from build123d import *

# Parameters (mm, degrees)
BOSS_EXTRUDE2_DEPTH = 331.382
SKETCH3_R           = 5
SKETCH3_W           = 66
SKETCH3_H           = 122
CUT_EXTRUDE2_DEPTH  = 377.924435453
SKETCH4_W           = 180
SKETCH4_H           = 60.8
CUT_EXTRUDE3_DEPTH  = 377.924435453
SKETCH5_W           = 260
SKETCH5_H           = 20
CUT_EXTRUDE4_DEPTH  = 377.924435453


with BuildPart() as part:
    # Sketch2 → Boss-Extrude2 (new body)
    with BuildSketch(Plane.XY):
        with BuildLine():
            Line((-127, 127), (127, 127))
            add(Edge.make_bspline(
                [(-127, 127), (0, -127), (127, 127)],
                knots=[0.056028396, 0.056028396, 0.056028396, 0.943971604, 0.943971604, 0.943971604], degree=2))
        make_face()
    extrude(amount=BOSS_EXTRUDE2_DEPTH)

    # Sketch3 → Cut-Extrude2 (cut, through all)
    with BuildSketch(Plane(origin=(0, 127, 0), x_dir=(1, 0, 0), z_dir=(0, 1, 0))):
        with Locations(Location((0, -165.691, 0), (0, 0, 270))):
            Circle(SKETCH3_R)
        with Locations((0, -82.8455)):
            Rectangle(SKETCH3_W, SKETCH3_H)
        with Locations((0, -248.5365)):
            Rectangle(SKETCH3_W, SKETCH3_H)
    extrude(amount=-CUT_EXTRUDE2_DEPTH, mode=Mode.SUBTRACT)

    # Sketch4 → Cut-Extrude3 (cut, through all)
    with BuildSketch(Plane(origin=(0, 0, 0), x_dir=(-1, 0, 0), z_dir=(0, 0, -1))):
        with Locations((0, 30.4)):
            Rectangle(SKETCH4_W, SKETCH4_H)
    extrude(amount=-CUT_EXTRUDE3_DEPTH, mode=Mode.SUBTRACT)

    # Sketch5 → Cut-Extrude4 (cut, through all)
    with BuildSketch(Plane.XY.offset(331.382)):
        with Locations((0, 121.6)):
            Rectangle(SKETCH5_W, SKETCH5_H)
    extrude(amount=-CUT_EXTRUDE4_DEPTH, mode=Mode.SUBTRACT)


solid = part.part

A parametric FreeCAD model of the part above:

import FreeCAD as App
import Part
import Sketcher
from FreeCAD import Vector


def add_polygon(sketch, points):
    """Adds a closed chain of lines whose ends are joined by coincident constraints."""
    first, n = sketch.GeometryCount, len(points)
    for a, b in zip(points, points[1:] + points[:1]):
        sketch.addGeometry(Part.LineSegment(App.Vector(*a, 0), App.Vector(*b, 0)), False)
    for i in range(n):
        sketch.addConstraint(Sketcher.Constraint("Coincident", first + i, 2, first + (i + 1) % n, 1))

doc = App.newDocument("Part")
params = doc.addObject("Spreadsheet::Sheet", "Params")
for row, (alias, value) in enumerate([
    ("pad1_length", "331.382 mm"),
    ("sketch2_diameter", "10 mm"),
    ("sketch2_width", "66 mm"),
    ("sketch2_height", "122 mm"),
    ("sketch3_width", "180 mm"),
    ("sketch3_height", "60.8 mm"),
    ("sketch4_width", "260 mm"),
    ("sketch4_height", "20 mm"),
], start=1):
    params.set(f"A{row}", alias)
    params.set(f"B{row}", "=" + value)
    params.setAlias(f"B{row}", alias)

body = doc.addObject("PartDesign::Body", "Body")

sketch1 = body.newObject("Sketcher::SketchObject", "Sketch")
sketch1.AttachmentSupport = (doc.getObject("XY_Plane"), [""])
sketch1.MapMode = "FlatFace"
sketch1.addGeometry(Part.LineSegment(Vector(127, 127, 0), Vector(-127, 127, 0)), False)
sketch1.addGeometry(Part.BSplineCurve([Vector(-127, 127, 0), Vector(0, -127, 0), Vector(127, 127, 0)], [3, 3], [0.056028396, 0.943971604], False, 2, [1, 1, 1], False), False)
sketch1.addConstraint(Sketcher.Constraint("Block", 1))
sketch1.addConstraint(Sketcher.Constraint("Coincident", 0, 1, 1, 2))
sketch1.addConstraint(Sketcher.Constraint("Coincident", 1, 1, 0, 2))
pad1 = body.newObject("PartDesign::Pad", "Pad")
pad1.Profile = sketch1
pad1.setExpression("Length", "Params.pad1_length")

sketch2 = body.newObject("Sketcher::SketchObject", "Sketch001")
sketch2.AttachmentSupport = (doc.getObject("XZ_Plane"), [""])
sketch2.MapMode = "FlatFace"
sketch2.AttachmentOffset = App.Placement(Vector(0, 0, -127), App.Rotation())
sketch2.addGeometry(Part.Circle(Vector(0, 165.691, 0), Vector(0, 0, 1), 5), False)
add_polygon(sketch2, [(-33, 21.8455), (-33, 143.8455), (33, 143.8455), (33, 21.8455)])
add_polygon(sketch2, [(-33, 187.5365), (-33, 309.5365), (33, 309.5365), (33, 187.5365)])
sketch2.addConstraint(Sketcher.Constraint("Vertical", 1))
sketch2.addConstraint(Sketcher.Constraint("Horizontal", 2))
sketch2.addConstraint(Sketcher.Constraint("Vertical", 3))
sketch2.addConstraint(Sketcher.Constraint("Horizontal", 4))
sketch2.addConstraint(Sketcher.Constraint("Vertical", 5))
sketch2.addConstraint(Sketcher.Constraint("Horizontal", 6))
sketch2.addConstraint(Sketcher.Constraint("Vertical", 7))
sketch2.addConstraint(Sketcher.Constraint("Horizontal", 8))
sketch2.addConstraint(Sketcher.Constraint("PointOnObject", 0, 3, -2))
sketch2.addConstraint(Sketcher.Constraint("Vertical", 4, 2, 5, 2))
sketch2.addConstraint(Sketcher.Constraint("Vertical", 3, 2, 6, 2))
sketch2.addConstraint(Sketcher.Constraint("Equal", 3, 5))
sketch2.addConstraint(Sketcher.Constraint("Diameter", 0, 10.0))
sketch2.addConstraint(Sketcher.Constraint("DistanceX", 2, 1, 2, 2, 66.0))
sketch2.addConstraint(Sketcher.Constraint("DistanceY", 1, 1, 1, 2, 122.0))
sketch2.addConstraint(Sketcher.Constraint("DistanceX", 1, 2, -1, 1, 33.0))
sketch2.addConstraint(Sketcher.Constraint("DistanceY", -1, 1, 0, 3, 165.691))
sketch2.addConstraint(Sketcher.Constraint("DistanceY", 1, 2, 5, 2, 165.691))
sketch2.addConstraint(Sketcher.Constraint("DistanceY", -1, 1, 1, 2, 143.8455))
sketch2.setExpression("Constraints[20]", "Params.sketch2_diameter")
sketch2.setExpression("Constraints[21]", "Params.sketch2_width")
sketch2.setExpression("Constraints[22]", "Params.sketch2_height")
pocket1 = body.newObject("PartDesign::Pocket", "Pocket")
pocket1.Profile = sketch2
pocket1.Type = "ThroughAll"
pocket1.Reversed = True

sketch3 = body.newObject("Sketcher::SketchObject", "Sketch002")
sketch3.AttachmentSupport = (doc.getObject("XY_Plane"), [""])
sketch3.MapMode = "FlatFace"
add_polygon(sketch3, [(90, 60.8), (90, 0), (-90, 0), (-90, 60.8)])
sketch3.addConstraint(Sketcher.Constraint("Vertical", 0))
sketch3.addConstraint(Sketcher.Constraint("Horizontal", 1))
sketch3.addConstraint(Sketcher.Constraint("Vertical", 2))
sketch3.addConstraint(Sketcher.Constraint("Horizontal", 3))
sketch3.addConstraint(Sketcher.Constraint("Symmetric", 0, 2, 1, 2, -1, 1))
sketch3.addConstraint(Sketcher.Constraint("DistanceX", 1, 2, 1, 1, 180.0))
sketch3.addConstraint(Sketcher.Constraint("DistanceY", 0, 2, 0, 1, 60.8))
sketch3.setExpression("Constraints[9]", "Params.sketch3_width")
sketch3.setExpression("Constraints[10]", "Params.sketch3_height")
pocket2 = body.newObject("PartDesign::Pocket", "Pocket001")
pocket2.Profile = sketch3
pocket2.Type = "ThroughAll"
pocket2.Reversed = True

sketch4 = body.newObject("Sketcher::SketchObject", "Sketch003")
sketch4.AttachmentSupport = (doc.getObject("XY_Plane"), [""])
sketch4.MapMode = "FlatFace"
sketch4.AttachmentOffset = App.Placement(Vector(0, 0, 331.382), App.Rotation())
add_polygon(sketch4, [(-130, 131.6), (-130, 111.6), (130, 111.6), (130, 131.6)])
sketch4.addConstraint(Sketcher.Constraint("Vertical", 0))
sketch4.addConstraint(Sketcher.Constraint("Horizontal", 1))
sketch4.addConstraint(Sketcher.Constraint("Vertical", 2))
sketch4.addConstraint(Sketcher.Constraint("Horizontal", 3))
sketch4.addConstraint(Sketcher.Constraint("DistanceX", 1, 1, 1, 2, 260.0))
sketch4.addConstraint(Sketcher.Constraint("DistanceY", 0, 2, 0, 1, 20.0))
sketch4.addConstraint(Sketcher.Constraint("DistanceX", 0, 2, -1, 1, 130.0))
sketch4.addConstraint(Sketcher.Constraint("DistanceY", -1, 1, 0, 2, 111.6))
sketch4.setExpression("Constraints[8]", "Params.sketch4_width")
sketch4.setExpression("Constraints[9]", "Params.sketch4_height")
pocket3 = body.newObject("PartDesign::Pocket", "Pocket002")
pocket3.Profile = sketch4
pocket3.Type = "ThroughAll"

doc.recompute()
